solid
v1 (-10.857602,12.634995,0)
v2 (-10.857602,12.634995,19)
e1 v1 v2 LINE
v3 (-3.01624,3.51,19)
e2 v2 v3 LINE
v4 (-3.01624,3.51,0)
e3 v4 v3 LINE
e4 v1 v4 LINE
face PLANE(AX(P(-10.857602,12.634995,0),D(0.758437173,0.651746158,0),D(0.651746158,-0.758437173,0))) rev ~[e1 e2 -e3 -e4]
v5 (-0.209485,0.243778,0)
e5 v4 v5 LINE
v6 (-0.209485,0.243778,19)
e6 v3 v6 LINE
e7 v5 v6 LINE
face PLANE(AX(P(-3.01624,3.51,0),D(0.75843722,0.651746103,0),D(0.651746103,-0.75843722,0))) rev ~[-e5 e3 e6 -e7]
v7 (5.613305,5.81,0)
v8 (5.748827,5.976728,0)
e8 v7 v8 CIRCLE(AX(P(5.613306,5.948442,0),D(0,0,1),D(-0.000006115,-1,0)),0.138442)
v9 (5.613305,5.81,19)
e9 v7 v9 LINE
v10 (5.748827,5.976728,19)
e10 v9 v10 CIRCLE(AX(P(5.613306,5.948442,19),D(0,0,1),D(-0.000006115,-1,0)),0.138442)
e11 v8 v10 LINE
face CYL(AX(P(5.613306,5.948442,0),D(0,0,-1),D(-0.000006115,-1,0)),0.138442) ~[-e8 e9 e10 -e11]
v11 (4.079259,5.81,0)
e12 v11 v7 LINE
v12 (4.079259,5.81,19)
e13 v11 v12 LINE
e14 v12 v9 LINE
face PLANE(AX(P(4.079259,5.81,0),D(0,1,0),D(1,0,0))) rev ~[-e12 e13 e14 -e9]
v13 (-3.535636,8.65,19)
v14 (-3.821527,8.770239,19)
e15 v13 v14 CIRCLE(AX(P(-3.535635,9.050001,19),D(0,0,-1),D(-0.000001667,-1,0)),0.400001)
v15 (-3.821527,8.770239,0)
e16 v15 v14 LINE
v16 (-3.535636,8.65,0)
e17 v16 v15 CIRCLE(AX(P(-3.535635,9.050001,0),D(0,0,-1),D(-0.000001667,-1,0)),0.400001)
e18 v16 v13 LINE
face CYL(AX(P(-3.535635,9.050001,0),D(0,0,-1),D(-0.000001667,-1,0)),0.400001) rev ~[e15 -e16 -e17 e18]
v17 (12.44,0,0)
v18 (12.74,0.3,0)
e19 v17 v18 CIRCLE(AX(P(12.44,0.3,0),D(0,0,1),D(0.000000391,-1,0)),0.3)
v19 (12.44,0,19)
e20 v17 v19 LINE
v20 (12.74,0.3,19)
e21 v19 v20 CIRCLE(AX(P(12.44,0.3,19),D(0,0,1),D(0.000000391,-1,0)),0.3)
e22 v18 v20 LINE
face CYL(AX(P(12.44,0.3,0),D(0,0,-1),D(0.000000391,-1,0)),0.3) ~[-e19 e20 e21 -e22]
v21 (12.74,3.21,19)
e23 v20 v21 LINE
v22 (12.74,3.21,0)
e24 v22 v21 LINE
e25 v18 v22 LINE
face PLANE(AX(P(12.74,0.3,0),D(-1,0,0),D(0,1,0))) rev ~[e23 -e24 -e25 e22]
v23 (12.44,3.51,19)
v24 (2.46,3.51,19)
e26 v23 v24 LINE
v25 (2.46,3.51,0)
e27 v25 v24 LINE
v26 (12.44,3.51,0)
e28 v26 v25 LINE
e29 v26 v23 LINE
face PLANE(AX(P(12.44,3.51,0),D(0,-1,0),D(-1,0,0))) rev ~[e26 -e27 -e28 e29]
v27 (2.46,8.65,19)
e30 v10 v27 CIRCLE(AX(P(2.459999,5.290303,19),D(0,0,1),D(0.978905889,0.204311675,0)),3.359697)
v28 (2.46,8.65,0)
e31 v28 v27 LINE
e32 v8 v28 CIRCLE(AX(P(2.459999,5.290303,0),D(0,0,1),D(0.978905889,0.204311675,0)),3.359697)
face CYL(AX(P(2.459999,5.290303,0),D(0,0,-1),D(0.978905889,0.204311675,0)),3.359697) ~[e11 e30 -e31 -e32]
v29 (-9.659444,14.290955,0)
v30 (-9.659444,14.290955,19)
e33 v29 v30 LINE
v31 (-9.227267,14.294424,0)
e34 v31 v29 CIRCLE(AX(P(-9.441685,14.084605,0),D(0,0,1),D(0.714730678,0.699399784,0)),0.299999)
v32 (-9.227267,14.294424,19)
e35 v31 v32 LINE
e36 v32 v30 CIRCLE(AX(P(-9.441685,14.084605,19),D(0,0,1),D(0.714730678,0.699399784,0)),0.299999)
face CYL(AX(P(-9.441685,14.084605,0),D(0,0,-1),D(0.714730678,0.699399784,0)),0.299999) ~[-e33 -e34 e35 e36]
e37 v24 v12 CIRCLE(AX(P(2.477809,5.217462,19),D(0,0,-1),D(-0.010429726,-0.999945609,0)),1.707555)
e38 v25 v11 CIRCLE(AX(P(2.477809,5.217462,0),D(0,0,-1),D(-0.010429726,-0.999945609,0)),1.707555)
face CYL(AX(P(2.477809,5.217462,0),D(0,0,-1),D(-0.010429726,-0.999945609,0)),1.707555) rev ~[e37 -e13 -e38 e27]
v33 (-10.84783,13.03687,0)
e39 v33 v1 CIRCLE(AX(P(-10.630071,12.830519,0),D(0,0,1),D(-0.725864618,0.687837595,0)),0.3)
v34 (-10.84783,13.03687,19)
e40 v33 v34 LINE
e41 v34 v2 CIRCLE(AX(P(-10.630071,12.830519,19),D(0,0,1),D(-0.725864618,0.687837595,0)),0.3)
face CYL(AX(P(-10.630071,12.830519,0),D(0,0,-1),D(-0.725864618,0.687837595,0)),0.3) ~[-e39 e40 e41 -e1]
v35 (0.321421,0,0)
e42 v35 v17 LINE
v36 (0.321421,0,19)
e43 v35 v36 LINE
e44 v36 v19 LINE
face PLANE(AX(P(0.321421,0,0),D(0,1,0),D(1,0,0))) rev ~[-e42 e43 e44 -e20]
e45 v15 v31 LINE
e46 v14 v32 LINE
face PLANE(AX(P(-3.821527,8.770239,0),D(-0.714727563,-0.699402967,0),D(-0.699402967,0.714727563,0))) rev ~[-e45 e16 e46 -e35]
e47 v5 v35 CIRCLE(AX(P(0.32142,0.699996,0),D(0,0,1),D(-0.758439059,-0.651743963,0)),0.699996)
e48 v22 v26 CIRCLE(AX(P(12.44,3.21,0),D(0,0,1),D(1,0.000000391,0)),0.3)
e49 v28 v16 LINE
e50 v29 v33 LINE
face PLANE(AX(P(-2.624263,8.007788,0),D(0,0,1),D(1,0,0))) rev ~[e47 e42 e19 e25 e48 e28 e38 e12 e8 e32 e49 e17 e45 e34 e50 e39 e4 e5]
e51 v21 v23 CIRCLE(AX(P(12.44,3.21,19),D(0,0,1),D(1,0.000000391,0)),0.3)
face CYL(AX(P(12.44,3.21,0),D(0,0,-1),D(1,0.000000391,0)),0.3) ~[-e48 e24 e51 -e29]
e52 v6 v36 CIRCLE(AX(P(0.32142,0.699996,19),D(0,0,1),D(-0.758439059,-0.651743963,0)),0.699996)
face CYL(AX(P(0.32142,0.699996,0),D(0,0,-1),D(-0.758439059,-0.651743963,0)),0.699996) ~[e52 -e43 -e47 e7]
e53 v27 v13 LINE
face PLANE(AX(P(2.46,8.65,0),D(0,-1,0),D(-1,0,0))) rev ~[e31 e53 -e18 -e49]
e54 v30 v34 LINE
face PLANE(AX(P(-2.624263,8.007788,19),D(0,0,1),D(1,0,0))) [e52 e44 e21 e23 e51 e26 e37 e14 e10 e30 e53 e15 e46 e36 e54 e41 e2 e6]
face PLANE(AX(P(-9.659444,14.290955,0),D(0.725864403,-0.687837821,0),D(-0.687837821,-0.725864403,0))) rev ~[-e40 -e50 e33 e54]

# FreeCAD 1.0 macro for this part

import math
import FreeCAD as App
import Part
import Sketcher
from FreeCAD import Vector
Q = App.Units.Quantity

doc = App.newDocument("Part")
body = doc.addObject("PartDesign::Body", "Body")

# Sketch on XY plane
sketch1 = doc.addObject("Sketcher::SketchObject", "Sketch")
body.addObject(sketch1)
sketch1.AttachmentSupport = (doc.XY_Plane, [""])
sketch1.MapMode = "FlatFace"
sketch1.addGeometry([
    Part.LineSegment(Vector(-10.86, 12.63, 0), Vector(-3.02, 3.51, 0)),  # 0
    Part.LineSegment(Vector(-3.02, 3.51, 0), Vector(-0.21, 0.24, 0)),  # 1
    Part.ArcOfCircle(Part.Circle(Vector(0.32, 0.7, 0), Vector(0, 0, 1), 0.7), math.radians(-139), math.radians(-90)),  # 2
    Part.LineSegment(Vector(0.32, 0, 0), Vector(12.44, 0, 0)),  # 3
    Part.ArcOfCircle(Part.Circle(Vector(12.44, 0.3, 0), Vector(0, 0, 1), 0.3), math.radians(-90), math.radians(0)),  # 4
    Part.LineSegment(Vector(12.74, 0.3, 0), Vector(12.74, 3.21, 0)),  # 5
    Part.ArcOfCircle(Part.Circle(Vector(12.44, 3.21, 0), Vector(0, 0, 1), 0.3), math.radians(0), math.radians(90)),  # 6
    Part.LineSegment(Vector(12.44, 3.51, 0), Vector(2.46, 3.51, 0)),  # 7
    Part.ArcOfCircle(Part.Circle(Vector(2.48, 5.22, 0), Vector(0, 0, 1), 1.71), math.radians(20), math.radians(269)),  # 8
    Part.LineSegment(Vector(4.08, 5.81, 0), Vector(5.61, 5.81, 0)),  # 9
    Part.ArcOfCircle(Part.Circle(Vector(5.61, 5.95, 0), Vector(0, 0, 1), 0.14), math.radians(-90), math.radians(12)),  # 10
    Part.ArcOfCircle(Part.Circle(Vector(2.46, 5.29, 0), Vector(0, 0, 1), 3.36), math.radians(12), math.radians(90)),  # 11
    Part.LineSegment(Vector(2.46, 8.65, 0), Vector(-3.54, 8.65, 0)),  # 12
    Part.ArcOfCircle(Part.Circle(Vector(-3.54, 9.05, 0), Vector(0, 0, 1), 0.4), math.radians(-136), math.radians(-90)),  # 13
    Part.LineSegment(Vector(-3.82, 8.77, 0), Vector(-9.23, 14.29, 0)),  # 14
    Part.ArcOfCircle(Part.Circle(Vector(-9.44, 14.08, 0), Vector(0, 0, 1), 0.3), math.radians(44), math.radians(137)),  # 15
    Part.LineSegment(Vector(-9.66, 14.29, 0), Vector(-10.85, 13.04, 0)),  # 16
    Part.ArcOfCircle(Part.Circle(Vector(-10.63, 12.83, 0), Vector(0, 0, 1), 0.3), math.radians(137), math.radians(221)),  # 17
], False)
sketch1.addConstraint([
    Sketcher.Constraint("Coincident", 0, 2, 1, 1),
    Sketcher.Constraint("Coincident", 1, 2, 2, 1),
    Sketcher.Constraint("Tangent", 2, 2, 3, 1),
    Sketcher.Constraint("Tangent", 3, 2, 4, 1),
    Sketcher.Constraint("Tangent", 4, 2, 5, 1),
    Sketcher.Constraint("Tangent", 5, 2, 6, 1),
    Sketcher.Constraint("Tangent", 6, 2, 7, 1),
    Sketcher.Constraint("Coincident", 7, 2, 8, 2),
    Sketcher.Constraint("Coincident", 8, 1, 9, 1),
    Sketcher.Constraint("Coincident", 9, 2, 10, 1),
    Sketcher.Constraint("Coincident", 10, 2, 11, 1),
    Sketcher.Constraint("Tangent", 11, 2, 12, 1),
    Sketcher.Constraint("Tangent", 12, 2, 13, 2),
    Sketcher.Constraint("Tangent", 13, 1, 14, 1),
    Sketcher.Constraint("Coincident", 14, 2, 15, 1),
    Sketcher.Constraint("Tangent", 15, 2, 16, 1),
    Sketcher.Constraint("Tangent", 16, 2, 17, 1),
    Sketcher.Constraint("Tangent", 17, 2, 0, 1),
    Sketcher.Constraint("Horizontal", 3),
    Sketcher.Constraint("Vertical", 5),
    Sketcher.Constraint("Horizontal", 7),
    Sketcher.Constraint("Horizontal", 9),
    Sketcher.Constraint("Horizontal", 12),
    Sketcher.Constraint("Equal", 4, 6),
    Sketcher.Constraint("Equal", 6, 15),
    Sketcher.Constraint("Equal", 15, 17),
    Sketcher.Constraint("PointOnObject", 2, 2, -1),
    Sketcher.Constraint("Parallel", 0, 1),
    Sketcher.Constraint("Horizontal", 0, 2, 6, 2),
    Sketcher.Constraint("Vertical", 11, 3, 7, 2),
    Sketcher.Constraint("Vertical", 10, 3, 9, 2),
    Sketcher.Constraint("Radius", 4, Q("0.3 mm")),
    Sketcher.Constraint("Radius", 13, Q("0.400001 mm")),
    Sketcher.Constraint("DistanceX", 7, 2, 7, 1, Q("9.98 mm")),
    Sketcher.Constraint("DistanceY", 5, 1, 5, 2, Q("2.91 mm")),
    Sketcher.Constraint("DistanceY", 7, 2, 8, 1, Q("2.3 mm")),
    Sketcher.Constraint("DistanceX", -1, 1, 4, 3, Q("12.44 mm")),
    Sketcher.Constraint("DistanceY", -1, 1, 13, 3, Q("9.050001 mm")),
    Sketcher.Constraint("Radius", 10, Q("0.138442 mm")),
    Sketcher.Constraint("Radius", 2, Q("0.699996 mm")),
    Sketcher.Constraint("Radius", 8, Q("1.707555 mm")),
    Sketcher.Constraint("Radius", 11, Q("3.359697 mm")),
    Sketcher.Constraint("DistanceX", 3, 1, 3, 2, Q("12.118579 mm")),
    Sketcher.Constraint("DistanceX", 9, 1, 9, 2, Q("1.534046 mm")),
    Sketcher.Constraint("DistanceX", 12, 2, 12, 1, Q("5.995636 mm")),
    Sketcher.Constraint("DistanceX", 17, 3, -1, 1, Q("10.630071 mm")),
    Sketcher.Constraint("DistanceY", -1, 1, 17, 3, Q("12.830519 mm")),
    Sketcher.Constraint("DistanceY", -1, 1, 10, 2, Q("5.976728 mm")),
    Sketcher.Constraint("DistanceY", -1, 1, 13, 1, Q("8.770239 mm")),
    Sketcher.Constraint("DistanceX", 16, 2, -1, 1, Q("10.84783 mm")),
    Sketcher.Constraint("DistanceY", 1, 2, 2, 3, Q("0.456218 mm")),
    Sketcher.Constraint("DistanceX", 15, 3, 14, 2, Q("0.214418 mm")),
])
pad1 = doc.addObject("PartDesign::Pad", "Pad")
body.addObject(pad1)
pad1.Profile = sketch1
pad1.Length = 19

doc.recompute()
